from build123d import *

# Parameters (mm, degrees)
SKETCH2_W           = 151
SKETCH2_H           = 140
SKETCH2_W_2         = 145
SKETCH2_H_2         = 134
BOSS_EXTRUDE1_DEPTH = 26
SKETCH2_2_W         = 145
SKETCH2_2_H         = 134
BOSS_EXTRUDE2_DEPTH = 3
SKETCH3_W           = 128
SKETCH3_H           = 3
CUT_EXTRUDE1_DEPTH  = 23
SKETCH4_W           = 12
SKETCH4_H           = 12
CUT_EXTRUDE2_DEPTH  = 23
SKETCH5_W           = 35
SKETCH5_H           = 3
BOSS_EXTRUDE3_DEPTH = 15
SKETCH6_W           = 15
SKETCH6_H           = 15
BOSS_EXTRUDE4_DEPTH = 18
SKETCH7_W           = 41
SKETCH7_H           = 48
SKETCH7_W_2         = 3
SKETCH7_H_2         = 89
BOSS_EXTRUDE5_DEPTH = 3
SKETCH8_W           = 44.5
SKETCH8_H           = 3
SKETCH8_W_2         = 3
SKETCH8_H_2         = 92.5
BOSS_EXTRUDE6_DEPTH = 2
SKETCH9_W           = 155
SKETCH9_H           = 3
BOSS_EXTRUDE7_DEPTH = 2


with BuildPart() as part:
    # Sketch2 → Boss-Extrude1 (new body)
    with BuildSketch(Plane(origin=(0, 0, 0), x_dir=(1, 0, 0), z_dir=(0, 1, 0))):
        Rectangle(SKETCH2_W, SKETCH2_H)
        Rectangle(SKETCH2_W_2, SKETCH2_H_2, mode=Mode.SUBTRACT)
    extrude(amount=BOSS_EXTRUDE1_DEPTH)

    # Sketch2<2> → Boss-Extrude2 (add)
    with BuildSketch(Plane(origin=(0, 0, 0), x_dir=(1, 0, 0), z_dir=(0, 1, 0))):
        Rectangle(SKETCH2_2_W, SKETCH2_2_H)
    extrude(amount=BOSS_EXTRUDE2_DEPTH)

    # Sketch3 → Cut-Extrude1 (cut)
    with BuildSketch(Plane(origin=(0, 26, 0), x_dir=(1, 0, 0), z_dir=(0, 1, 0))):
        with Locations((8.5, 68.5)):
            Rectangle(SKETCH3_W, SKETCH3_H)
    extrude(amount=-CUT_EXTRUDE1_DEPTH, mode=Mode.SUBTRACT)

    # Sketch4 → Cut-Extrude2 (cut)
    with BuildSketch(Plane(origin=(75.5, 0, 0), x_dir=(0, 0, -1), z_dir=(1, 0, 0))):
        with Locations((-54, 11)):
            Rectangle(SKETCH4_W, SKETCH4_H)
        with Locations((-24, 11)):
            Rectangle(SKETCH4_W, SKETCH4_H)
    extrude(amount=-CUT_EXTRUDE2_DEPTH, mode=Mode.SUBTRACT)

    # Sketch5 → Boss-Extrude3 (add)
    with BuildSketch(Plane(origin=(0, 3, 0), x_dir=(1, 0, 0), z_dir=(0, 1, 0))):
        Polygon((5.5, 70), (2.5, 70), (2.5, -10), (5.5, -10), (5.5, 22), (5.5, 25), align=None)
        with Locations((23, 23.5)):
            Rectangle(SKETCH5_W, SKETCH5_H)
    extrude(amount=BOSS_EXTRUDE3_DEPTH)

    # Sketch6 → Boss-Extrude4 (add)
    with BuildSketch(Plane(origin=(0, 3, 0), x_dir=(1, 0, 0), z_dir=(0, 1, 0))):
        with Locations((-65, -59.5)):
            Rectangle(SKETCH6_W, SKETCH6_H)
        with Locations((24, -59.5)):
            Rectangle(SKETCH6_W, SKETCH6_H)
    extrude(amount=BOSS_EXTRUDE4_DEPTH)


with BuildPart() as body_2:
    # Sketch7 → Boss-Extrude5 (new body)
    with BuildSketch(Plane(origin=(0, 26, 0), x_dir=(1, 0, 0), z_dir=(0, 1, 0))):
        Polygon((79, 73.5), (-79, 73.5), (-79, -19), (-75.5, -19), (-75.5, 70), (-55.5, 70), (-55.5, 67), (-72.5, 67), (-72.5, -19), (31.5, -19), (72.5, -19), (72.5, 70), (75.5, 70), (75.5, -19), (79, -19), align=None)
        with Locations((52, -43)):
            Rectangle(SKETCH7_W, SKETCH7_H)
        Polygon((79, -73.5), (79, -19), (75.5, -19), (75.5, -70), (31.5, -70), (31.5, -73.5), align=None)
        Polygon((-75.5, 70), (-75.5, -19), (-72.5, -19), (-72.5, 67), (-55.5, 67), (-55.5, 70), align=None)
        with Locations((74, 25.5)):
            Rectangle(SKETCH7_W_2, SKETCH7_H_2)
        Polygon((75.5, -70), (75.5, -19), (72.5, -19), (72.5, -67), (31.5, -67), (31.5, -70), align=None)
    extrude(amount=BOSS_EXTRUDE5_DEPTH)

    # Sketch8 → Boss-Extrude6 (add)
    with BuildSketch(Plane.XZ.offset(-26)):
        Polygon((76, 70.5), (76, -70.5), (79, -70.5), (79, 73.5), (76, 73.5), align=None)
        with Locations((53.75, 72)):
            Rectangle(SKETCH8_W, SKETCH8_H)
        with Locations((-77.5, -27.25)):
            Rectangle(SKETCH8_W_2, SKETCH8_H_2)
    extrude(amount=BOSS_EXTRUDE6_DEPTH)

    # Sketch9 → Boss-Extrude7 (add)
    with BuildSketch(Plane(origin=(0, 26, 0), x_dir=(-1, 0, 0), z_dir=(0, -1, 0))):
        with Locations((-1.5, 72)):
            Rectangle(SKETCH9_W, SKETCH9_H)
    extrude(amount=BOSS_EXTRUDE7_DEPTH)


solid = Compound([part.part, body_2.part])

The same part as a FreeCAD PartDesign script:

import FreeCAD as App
import Part
import Sketcher

V = App.Vector
Q = App.Units.Quantity

doc = App.newDocument("Part")
body = doc.addObject("PartDesign::Body", "Body")

# Sketch on XZ plane
sketch1 = body.newObject("Sketcher::SketchObject", "Sketch")
sketch1.AttachmentSupport = (doc.getObject("XZ_Plane"), [""])
sketch1.MapMode = "FlatFace"
sketch1.addGeometry([
    Part.LineSegment(V(-76, -70, 0), V(-76, 70, 0)),  # 0
    Part.LineSegment(V(-76, 70, 0), V(76, 70, 0)),  # 1
    Part.LineSegment(V(76, 70, 0), V(76, -70, 0)),  # 2
    Part.LineSegment(V(76, -70, 0), V(-76, -70, 0)),  # 3
    Part.LineSegment(V(72, 67, 0), V(-72, 67, 0)),  # 4
    Part.LineSegment(V(-72, 67, 0), V(-72, -67, 0)),  # 5
    Part.LineSegment(V(-72, -67, 0), V(72, -67, 0)),  # 6
    Part.LineSegment(V(72, -67, 0), V(72, 67, 0)),  # 7
], False)
sketch1.addConstraint([
    Sketcher.Constraint("Coincident", 0, 2, 1, 1),
    Sketcher.Constraint("Coincident", 1, 2, 2, 1),
    Sketcher.Constraint("Coincident", 2, 2, 3, 1),
    Sketcher.Constraint("Coincident", 3, 2, 0, 1),
    Sketcher.Constraint("Coincident", 4, 2, 5, 1),
    Sketcher.Constraint("Coincident", 5, 2, 6, 1),
    Sketcher.Constraint("Coincident", 6, 2, 7, 1),
    Sketcher.Constraint("Coincident", 7, 2, 4, 1),
    Sketcher.Constraint("Vertical", 0),
    Sketcher.Constraint("Horizontal", 1),
    Sketcher.Constraint("Vertical", 2),
    Sketcher.Constraint("Horizontal", 3),
    Sketcher.Constraint("Horizontal", 4),
    Sketcher.Constraint("Vertical", 5),
    Sketcher.Constraint("Horizontal", 6),
    Sketcher.Constraint("Vertical", 7),
    Sketcher.Constraint("Symmetric", 0, 2, 2, 2, -1, 1),
    Sketcher.Constraint("Symmetric", 4, 2, 6, 2, -1, 1),
    Sketcher.Constraint("DistanceX", 1, 1, 1, 2, Q("151 mm")),
    Sketcher.Constraint("DistanceX", 4, 2, 4, 1, Q("145 mm")),
    Sketcher.Constraint("DistanceY", 0, 1, 0, 2, Q("140 mm")),
    Sketcher.Constraint("DistanceY", 5, 2, 5, 1, Q("134 mm")),
])
pad1 = body.newObject("PartDesign::Pad", "Pad")
pad1.Profile = sketch1
pad1.Length = 26
pad1.Reversed = True

# Sketch on XZ plane
sketch2 = body.newObject("Sketcher::SketchObject", "Sketch001")
sketch2.AttachmentSupport = (doc.getObject("XZ_Plane"), [""])
sketch2.MapMode = "FlatFace"
sketch2.addGeometry([
    Part.LineSegment(V(-72, -67, 0), V(-72, 67, 0)),
    Part.LineSegment(V(-72, 67, 0), V(72, 67, 0)),
    Part.LineSegment(V(72, 67, 0), V(72, -67, 0)),
    Part.LineSegment(V(72, -67, 0), V(-72, -67, 0)),
], False)
sketch2.addConstraint([
    Sketcher.Constraint("Coincident", 0, 2, 1, 1),
    Sketcher.Constraint("Coincident", 1, 2, 2, 1),
    Sketcher.Constraint("Coincident", 2, 2, 3, 1),
    Sketcher.Constraint("Coincident", 3, 2, 0, 1),
    Sketcher.Constraint("Vertical", 0),
    Sketcher.Constraint("Horizontal", 1),
    Sketcher.Constraint("Vertical", 2),
    Sketcher.Constraint("Horizontal", 3),
    Sketcher.Constraint("Symmetric", 0, 2, 2, 2, -1, 1),
    Sketcher.Constraint("DistanceX", 1, 1, 1, 2, Q("145 mm")),
    Sketcher.Constraint("DistanceY", 0, 1, 0, 2, Q("134 mm")),
])
pad2 = body.newObject("PartDesign::Pad", "Pad001")
pad2.Profile = sketch2
pad2.Length = 3
pad2.Reversed = True

# Sketch on XZ plane
sketch3 = body.newObject("Sketcher::SketchObject", "Sketch002")
sketch3.AttachmentSupport = (doc.getObject("XZ_Plane"), [""])
sketch3.MapMode = "FlatFace"
sketch3.AttachmentOffset = App.Placement(V(0, 0, -26), App.Rotation())
sketch3.addGeometry([
    Part.LineSegment(V(-55.5, -70, 0), V(-55.5, -67, 0)),
    Part.LineSegment(V(-55.5, -67, 0), V(72.5, -67, 0)),
    Part.LineSegment(V(72.5, -67, 0), V(72.5, -70, 0)),
    Part.LineSegment(V(72.5, -70, 0), V(-55.5, -70, 0)),
], False)
sketch3.addConstraint([
    Sketcher.Constraint("Coincident", 0, 2, 1, 1),
    Sketcher.Constraint("Coincident", 1, 2, 2, 1),
    Sketcher.Constraint("Coincident", 2, 2, 3, 1),
    Sketcher.Constraint("Coincident", 3, 2, 0, 1),
    Sketcher.Constraint("Vertical", 0),
    Sketcher.Constraint("Horizontal", 1),
    Sketcher.Constraint("Vertical", 2),
    Sketcher.Constraint("Horizontal", 3),
    Sketcher.Constraint("DistanceX", 1, 1, 1, 2, Q("128 mm")),
    Sketcher.Constraint("DistanceY", 0, 1, 0, 2, Q("3 mm")),
    Sketcher.Constraint("DistanceY", 0, 2, -1, 1, Q("67 mm")),
    Sketcher.Constraint("DistanceX", 0, 2, -1, 1, Q("55.5 mm")),
])
pocket1 = body.newObject("PartDesign::Pocket", "Pocket")
pocket1.Profile = sketch3
pocket1.Length = 23
pocket1.Reversed = True

# Sketch on YZ plane
sketch4 = body.newObject("Sketcher::SketchObject", "Sketch003")
sketch4.AttachmentSupport = (doc.getObject("YZ_Plane"), [""])
sketch4.MapMode = "FlatFace"
sketch4.AttachmentOffset = App.Placement(V(0, 0, 75.5), App.Rotation())
sketch4.addGeometry([
    Part.LineSegment(V(17, 60, 0), V(5, 60, 0)),  # 0
    Part.LineSegment(V(5, 60, 0), V(5, 48, 0)),  # 1
    Part.LineSegment(V(5, 48, 0), V(17, 48, 0)),  # 2
    Part.LineSegment(V(17, 48, 0), V(17, 60, 0)),  # 3
    Part.LineSegment(V(17, 30, 0), V(5, 30, 0)),  # 4
    Part.LineSegment(V(5, 30, 0), V(5, 18, 0)),  # 5
    Part.LineSegment(V(5, 18, 0), V(17, 18, 0)),  # 6
    Part.LineSegment(V(17, 18, 0), V(17, 30, 0)),  # 7
], False)
sketch4.addConstraint([
    Sketcher.Constraint("Coincident", 0, 2, 1, 1),
    Sketcher.Constraint("Coincident", 1, 2, 2, 1),
    Sketcher.Constraint("Coincident", 2, 2, 3, 1),
    Sketcher.Constraint("Coincident", 3, 2, 0, 1),
    Sketcher.Constraint("Coincident", 4, 2, 5, 1),
    Sketcher.Constraint("Coincident", 5, 2, 6, 1),
    Sketcher.Constraint("Coincident", 6, 2, 7, 1),
    Sketcher.Constraint("Coincident", 7, 2, 4, 1),
    Sketcher.Constraint("Horizontal", 0),
    Sketcher.Constraint("Vertical", 1),
    Sketcher.Constraint("Horizontal", 2),
    Sketcher.Constraint("Vertical", 3),
    Sketcher.Constraint("Horizontal", 4),
    Sketcher.Constraint("Vertical", 5),
    Sketcher.Constraint("Horizontal", 6),
    Sketcher.Constraint("Vertical", 7),
    Sketcher.Constraint("Vertical", 1, 2, 4, 2),
    Sketcher.Constraint("Vertical", 3, 2, 6, 2),
    Sketcher.Constraint("Equal", 6, 1),
    Sketcher.Constraint("Equal", 3, 5),
    Sketcher.Constraint("DistanceX", 0, 2, 0, 1, Q("12 mm")),
    Sketcher.Constraint("DistanceX", -1, 1, 0, 2, Q("5 mm")),
    Sketcher.Constraint("DistanceY", -1, 1, 0, 2, Q("60 mm")),
    Sketcher.Constraint("DistanceY", -1, 1, 4, 2, Q("30 mm")),
])
pocket2 = body.newObject("PartDesign::Pocket", "Pocket001")
pocket2.Profile = sketch4
pocket2.Length = 23

# Sketch on XZ plane
sketch5 = body.newObject("Sketcher::SketchObject", "Sketch004")
sketch5.AttachmentSupport = (doc.getObject("XZ_Plane"), [""])
sketch5.MapMode = "FlatFace"
sketch5.AttachmentOffset = App.Placement(V(0, 0, -3), App.Rotation())
sketch5.addGeometry([
    Part.LineSegment(V(5.5, -70, 0), V(2.5, -70, 0)),  # 0
    Part.LineSegment(V(2.5, -70, 0), V(2.5, 10, 0)),  # 1
    Part.LineSegment(V(2.5, 10, 0), V(5.5, 10, 0)),  # 2
    Part.LineSegment(V(5.5, 10, 0), V(5.5, -22, 0)),  # 3
    Part.LineSegment(V(5.5, -22, 0), V(40.5, -22, 0)),  # 4
    Part.LineSegment(V(40.5, -22, 0), V(40.5, -25, 0)),  # 5
    Part.LineSegment(V(40.5, -25, 0), V(5.5, -25, 0)),  # 6
    Part.LineSegment(V(5.5, -25, 0), V(5.5, -70, 0)),  # 7
], False)
sketch5.addConstraint([
    Sketcher.Constraint("Coincident", 0, 2, 1, 1),
    Sketcher.Constraint("Coincident", 1, 2, 2, 1),
    Sketcher.Constraint("Coincident", 2, 2, 3, 1),
    Sketcher.Constraint("Coincident", 3, 2, 4, 1),
    Sketcher.Constraint("Coincident", 4, 2, 5, 1),
    Sketcher.Constraint("Coincident", 5, 2, 6, 1),
    Sketcher.Constraint("Coincident", 6, 2, 7, 1),
    Sketcher.Constraint("Coincident", 7, 2, 0, 1),
    Sketcher.Constraint("Horizontal", 0),
    Sketcher.Constraint("Vertical", 1),
    Sketcher.Constraint("Horizontal", 2),
    Sketcher.Constraint("Vertical", 3),
    Sketcher.Constraint("Horizontal", 4),
    Sketcher.Constraint("Vertical", 5),
    Sketcher.Constraint("Horizontal", 6),
    Sketcher.Constraint("Vertical", 7),
    Sketcher.Constraint("Vertical", 3, 2, 6, 2),
    Sketcher.Constraint("Equal", 2, 5),
    Sketcher.Constraint("DistanceX", 0, 2, 0, 1, Q("3 mm")),
    Sketcher.Constraint("DistanceX", 4, 1, 4, 2, Q("35 mm")),
    Sketcher.Constraint("DistanceY", 1, 1, 1, 2, Q("80 mm")),
    Sketcher.Constraint("DistanceY", 3, 2, 3, 1, Q("32 mm")),
    Sketcher.Constraint("DistanceY", 0, 2, -1, 1, Q("70 mm")),
    Sketcher.Constraint("DistanceX", -1, 1, 0, 2, Q("2.5 mm")),
])
pad3 = body.newObject("PartDesign::Pad", "Pad002")
pad3.Profile = sketch5
pad3.Length = 15
pad3.Reversed = True

# Sketch on XZ plane
sketch6 = body.newObject("Sketcher::SketchObject", "Sketch005")
sketch6.AttachmentSupport = (doc.getObject("XZ_Plane"), [""])
sketch6.MapMode = "FlatFace"
sketch6.AttachmentOffset = App.Placement(V(0, 0, -3), App.Rotation())
sketch6.addGeometry([
    Part.LineSegment(V(-72, 52, 0), V(-72, 67, 0)),  # 0
    Part.LineSegment(V(-72, 67, 0), V(-58, 67, 0)),  # 1
    Part.LineSegment(V(-58, 67, 0), V(-58, 52, 0)),  # 2
    Part.LineSegment(V(-58, 52, 0), V(-72, 52, 0)),  # 3
    Part.LineSegment(V(16, 52, 0), V(16, 67, 0)),  # 4
    Part.LineSegment(V(16, 67, 0), V(32, 67, 0)),  # 5
    Part.LineSegment(V(32, 67, 0), V(32, 52, 0)),  # 6
    Part.LineSegment(V(32, 52, 0), V(16, 52, 0)),  # 7
], False)
sketch6.addConstraint([
    Sketcher.Constraint("Coincident", 0, 2, 1, 1),
    Sketcher.Constraint("Coincident", 1, 2, 2, 1),
    Sketcher.Constraint("Coincident", 2, 2, 3, 1),
    Sketcher.Constraint("Coincident", 3, 2, 0, 1),
    Sketcher.Constraint("Coincident", 4, 2, 5, 1),
    Sketcher.Constraint("Coincident", 5, 2, 6, 1),
    Sketcher.Constraint("Coincident", 6, 2, 7, 1),
    Sketcher.Constraint("Coincident", 7, 2, 4, 1),
    Sketcher.Constraint("Vertical", 0),
    Sketcher.Constraint("Horizontal", 1),
    Sketcher.Constraint("Vertical", 2),
    Sketcher.Constraint("Horizontal", 3),
    Sketcher.Constraint("Vertical", 4),
    Sketcher.Constraint("Horizontal", 5),
    Sketcher.Constraint("Vertical", 6),
    Sketcher.Constraint("Horizontal", 7),
    Sketcher.Constraint("Horizontal", 1, 2, 4, 2),
    Sketcher.Constraint("Horizontal", 3, 2, 6, 2),
    Sketcher.Constraint("Equal", 3, 5),
    Sketcher.Constraint("Equal", 7, 0),
    Sketcher.Constraint("DistanceX", 1, 1, 1, 2, Q("15 mm")),
    Sketcher.Constraint("DistanceY", -1, 1, 0, 2, Q("67 mm")),
    Sketcher.Constraint("DistanceX", 1, 2, 4, 2, Q("74 mm")),
    Sketcher.Constraint("DistanceX", 0, 2, -1, 1, Q("72.5 mm")),
])
pad4 = body.newObject("PartDesign::Pad", "Pad003")
pad4.Profile = sketch6
pad4.Length = 18
pad4.Reversed = True
body2 = doc.addObject("PartDesign::Body", "Body001")

# Sketch on XZ plane
sketch7 = body2.newObject("Sketcher::SketchObject", "Sketch006")
sketch7.AttachmentSupport = (doc.getObject("XZ_Plane001"), [""])
sketch7.MapMode = "FlatFace"
sketch7.AttachmentOffset = App.Placement(V(0, 0, -26), App.Rotation())
sketch7.addGeometry([
    Part.LineSegment(V(79, -74, 0), V(-79, -74, 0)),  # 0
    Part.LineSegment(V(-79, -74, 0), V(-79, 19, 0)),  # 1
    Part.LineSegment(V(-79, 19, 0), V(32, 19, 0)),  # 2
    Part.LineSegment(V(32, 19, 0), V(32, 74, 0)),  # 3
    Part.LineSegment(V(32, 74, 0), V(79, 74, 0)),  # 4
    Part.LineSegment(V(79, 74, 0), V(79, -74, 0)),  # 5
], False)
sketch7.addConstraint([
    Sketcher.Constraint("Coincident", 0, 2, 1, 1),
    Sketcher.Constraint("Coincident", 1, 2, 2, 1),
    Sketcher.Constraint("Coincident", 2, 2, 3, 1),
    Sketcher.Constraint("Coincident", 3, 2, 4, 1),
    Sketcher.Constraint("Coincident", 4, 2, 5, 1),
    Sketcher.Constraint("Coincident", 5, 2, 0, 1),
    Sketcher.Constraint("Horizontal", 0),
    Sketcher.Constraint("Vertical", 1),
    Sketcher.Constraint("Horizontal", 2),
    Sketcher.Constraint("Vertical", 3),
    Sketcher.Constraint("Horizontal", 4),
    Sketcher.Constraint("Vertical", 5),
    Sketcher.Constraint("Symmetric", 0, 2, 4, 2, -1, 1),
    Sketcher.Constraint("DistanceX", 0, 2, 0, 1, Q("158 mm")),
    Sketcher.Constraint("DistanceY", 5, 2, 5, 1, Q("147 mm")),
    Sketcher.Constraint("DistanceX", 2, 1, 2, 2, Q("110.5 mm")),
    Sketcher.Constraint("DistanceY", 1, 1, 1, 2, Q("92.5 mm")),
])
pad5 = body2.newObject("PartDesign::Pad", "Pad004")
pad5.Profile = sketch7
pad5.Length = 3
pad5.Reversed = True

# Sketch on XZ plane
sketch8 = body2.newObject("Sketcher::SketchObject", "Sketch007")
sketch8.AttachmentSupport = (doc.getObject("XZ_Plane001"), [""])
sketch8.MapMode = "FlatFace"
sketch8.AttachmentOffset = App.Placement(V(0, 0, -26), App.Rotation())
sketch8.addGeometry([
    Part.LineSegment(V(76, -70.5, 0), V(79, -70.5, 0)),  # 0
    Part.LineSegment(V(79, -70.5, 0), V(79, 73.5, 0)),  # 1
    Part.LineSegment(V(79, 73.5, 0), V(31.5, 73.5, 0)),  # 2
    Part.LineSegment(V(31.5, 73.5, 0), V(31.5, 70.5, 0)),  # 3
    Part.LineSegment(V(31.5, 70.5, 0), V(76, 70.5, 0)),  # 4
    Part.LineSegment(V(76, 70.5, 0), V(76, -70.5, 0)),  # 5
    Part.LineSegment(V(-79, 19, 0), V(-79, -73.5, 0)),  # 6
    Part.LineSegment(V(-79, -73.5, 0), V(-76, -73.5, 0)),  # 7
    Part.LineSegment(V(-76, -73.5, 0), V(-76, 19, 0)),  # 8
    Part.LineSegment(V(-76, 19, 0), V(-79, 19, 0)),  # 9
], False)
sketch8.addConstraint([
    Sketcher.Constraint("Coincident", 0, 2, 1, 1),
    Sketcher.Constraint("Coincident", 1, 2, 2, 1),
    Sketcher.Constraint("Coincident", 2, 2, 3, 1),
    Sketcher.Constraint("Coincident", 3, 2, 4, 1),
    Sketcher.Constraint("Coincident", 4, 2, 5, 1),
    Sketcher.Constraint("Coincident", 5, 2, 0, 1),
    Sketcher.Constraint("Coincident", 6, 2, 7, 1),
    Sketcher.Constraint("Coincident", 7, 2, 8, 1),
    Sketcher.Constraint("Coincident", 8, 2, 9, 1),
    Sketcher.Constraint("Coincident", 9, 2, 6, 1),
    Sketcher.Constraint("Horizontal", 0),
    Sketcher.Constraint("Vertical", 1),
    Sketcher.Constraint("Horizontal", 2),
    Sketcher.Constraint("Vertical", 3),
    Sketcher.Constraint("Horizontal", 4),
    Sketcher.Constraint("Vertical", 5),
    Sketcher.Constraint("Vertical", 6),
    Sketcher.Constraint("Horizontal", 7),
    Sketcher.Constraint("Vertical", 8),
    Sketcher.Constraint("Horizontal", 9),
    Sketcher.Constraint("Symmetric", 1, 2, 6, 2, -1, 1),
    Sketcher.Constraint("Equal", 0, 7),
    Sketcher.Constraint("Equal", 9, 3),
    Sketcher.Constraint("DistanceX", 0, 1, 0, 2, Q("3 mm")),
    Sketcher.Constraint("DistanceY", 1, 1, 1, 2, Q("144 mm")),
    Sketcher.Constraint("DistanceX", 2, 2, 2, 1, Q("47.5 mm")),
    Sketcher.Constraint("DistanceY", 6, 2, 6, 1, Q("92.5 mm")),
    Sketcher.Constraint("DistanceX", -1, 1, 0, 2, Q("79 mm")),
    Sketcher.Constraint("DistanceY", -1, 1, 8, 2, Q("19 mm")),
])
pad6 = body2.newObject("PartDesign::Pad", "Pad005")
pad6.Profile = sketch8
pad6.Length = 2

# Sketch on XZ plane
sketch9 = body2.newObject("Sketcher::SketchObject", "Sketch008")
sketch9.AttachmentSupport = (doc.getObject("XZ_Plane001"), [""])
sketch9.MapMode = "FlatFace"
sketch9.AttachmentOffset = App.Placement(V(0, 0, -26), App.Rotation())
sketch9.addGeometry([
    Part.LineSegment(V(79, -73.5, 0), V(79, -70.5, 0)),
    Part.LineSegment(V(79, -70.5, 0), V(-76, -70.5, 0)),
    Part.LineSegment(V(-76, -70.5, 0), V(-76, -73.5, 0)),
    Part.LineSegment(V(-76, -73.5, 0), V(79, -73.5, 0)),
], False)
sketch9.addConstraint([
    Sketcher.Constraint("Coincident", 0, 2, 1, 1),
    Sketcher.Constraint("Coincident", 1, 2, 2, 1),
    Sketcher.Constraint("Coincident", 2, 2, 3, 1),
    Sketcher.Constraint("Coincident", 3, 2, 0, 1),
    Sketcher.Constraint("Vertical", 0),
    Sketcher.Constraint("Horizontal", 1),
    Sketcher.Constraint("Vertical", 2),
    Sketcher.Constraint("Horizontal", 3),
    Sketcher.Constraint("DistanceX", 1, 2, 1, 1, Q("155 mm")),
    Sketcher.Constraint("DistanceY", 0, 1, 0, 2, Q("3 mm")),
    Sketcher.Constraint("DistanceX", -1, 1, 0, 2, Q("79 mm")),
    Sketcher.Constraint("DistanceY", 0, 2, -1, 1, Q("70.5 mm")),
])
pad7 = body2.newObject("PartDesign::Pad", "Pad006")
pad7.Profile = sketch9
pad7.Length = 2

doc.recompute()
